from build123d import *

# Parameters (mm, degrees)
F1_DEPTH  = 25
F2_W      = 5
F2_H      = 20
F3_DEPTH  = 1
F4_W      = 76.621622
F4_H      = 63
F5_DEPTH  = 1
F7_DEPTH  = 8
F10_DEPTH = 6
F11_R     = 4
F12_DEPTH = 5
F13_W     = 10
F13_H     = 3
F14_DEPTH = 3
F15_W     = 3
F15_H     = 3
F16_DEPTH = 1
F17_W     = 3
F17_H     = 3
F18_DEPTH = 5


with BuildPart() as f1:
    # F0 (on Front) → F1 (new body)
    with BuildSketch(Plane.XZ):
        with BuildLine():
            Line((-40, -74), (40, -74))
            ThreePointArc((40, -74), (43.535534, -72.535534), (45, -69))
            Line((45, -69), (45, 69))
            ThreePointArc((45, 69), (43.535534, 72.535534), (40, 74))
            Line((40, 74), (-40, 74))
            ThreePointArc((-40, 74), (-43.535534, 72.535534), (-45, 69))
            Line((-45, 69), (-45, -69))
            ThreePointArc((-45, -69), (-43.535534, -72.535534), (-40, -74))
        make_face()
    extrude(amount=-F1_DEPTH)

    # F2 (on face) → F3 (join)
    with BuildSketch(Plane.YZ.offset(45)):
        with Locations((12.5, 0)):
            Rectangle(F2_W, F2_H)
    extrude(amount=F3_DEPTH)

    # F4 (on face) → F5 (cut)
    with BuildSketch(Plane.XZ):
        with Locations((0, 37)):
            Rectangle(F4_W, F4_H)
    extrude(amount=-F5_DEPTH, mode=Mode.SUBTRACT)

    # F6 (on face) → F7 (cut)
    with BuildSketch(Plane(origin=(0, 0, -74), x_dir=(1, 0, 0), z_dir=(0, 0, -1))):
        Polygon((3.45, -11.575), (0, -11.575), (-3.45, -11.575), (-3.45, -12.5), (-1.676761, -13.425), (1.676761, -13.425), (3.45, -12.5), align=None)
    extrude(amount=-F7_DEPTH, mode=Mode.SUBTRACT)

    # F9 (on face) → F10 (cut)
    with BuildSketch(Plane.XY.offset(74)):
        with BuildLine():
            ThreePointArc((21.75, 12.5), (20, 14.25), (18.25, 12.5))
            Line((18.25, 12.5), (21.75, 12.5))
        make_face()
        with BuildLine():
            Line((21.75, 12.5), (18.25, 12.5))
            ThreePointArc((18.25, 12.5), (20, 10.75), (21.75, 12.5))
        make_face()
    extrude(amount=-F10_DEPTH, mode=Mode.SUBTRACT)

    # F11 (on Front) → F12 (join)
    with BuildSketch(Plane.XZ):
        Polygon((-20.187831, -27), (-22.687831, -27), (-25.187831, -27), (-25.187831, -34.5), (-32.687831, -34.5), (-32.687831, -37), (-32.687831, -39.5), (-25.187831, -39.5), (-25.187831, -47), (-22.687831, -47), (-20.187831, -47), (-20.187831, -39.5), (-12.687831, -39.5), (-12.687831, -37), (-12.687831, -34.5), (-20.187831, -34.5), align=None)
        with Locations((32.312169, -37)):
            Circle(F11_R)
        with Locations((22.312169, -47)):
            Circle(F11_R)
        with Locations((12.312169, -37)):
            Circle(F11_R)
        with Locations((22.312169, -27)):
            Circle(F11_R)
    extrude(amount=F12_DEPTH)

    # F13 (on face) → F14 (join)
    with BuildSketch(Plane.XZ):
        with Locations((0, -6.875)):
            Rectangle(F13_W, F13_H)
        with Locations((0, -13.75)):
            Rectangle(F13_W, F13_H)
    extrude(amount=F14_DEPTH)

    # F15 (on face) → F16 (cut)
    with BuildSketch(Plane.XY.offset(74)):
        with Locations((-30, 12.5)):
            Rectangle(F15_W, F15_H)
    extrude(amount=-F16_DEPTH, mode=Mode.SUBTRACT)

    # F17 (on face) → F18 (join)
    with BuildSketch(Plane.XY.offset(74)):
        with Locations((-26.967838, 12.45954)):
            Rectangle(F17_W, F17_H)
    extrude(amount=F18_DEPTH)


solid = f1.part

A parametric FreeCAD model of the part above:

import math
import FreeCAD as App
import Part
import Sketcher


def add_polygon(sketch, points):
    """Adds a closed chain of lines whose ends are joined by coincident constraints."""
    first, n = sketch.GeometryCount, len(points)
    for a, b in zip(points, points[1:] + points[:1]):
        sketch.addGeometry(Part.LineSegment(App.Vector(*a, 0), App.Vector(*b, 0)), False)
    for i in range(n):
        sketch.addConstraint(Sketcher.Constraint("Coincident", first + i, 2, first + (i + 1) % n, 1))

doc = App.newDocument("Part")
body = doc.addObject("PartDesign::Body", "Body")

sketch1 = body.newObject("Sketcher::SketchObject", "Sketch")
sketch1.AttachmentSupport = (doc.getObject("XZ_Plane"), [""])
sketch1.MapMode = "FlatFace"
sketch1.addGeometry(Part.LineSegment(App.Vector(-40, -74, 0), App.Vector(40, -74, 0)), False)
sketch1.addGeometry(Part.ArcOfCircle(Part.Circle(App.Vector(40, -69, 0), App.Vector(0, 0, 1), 5), math.radians(-90.000004), math.radians(0.000004)), False)
sketch1.addGeometry(Part.LineSegment(App.Vector(45, -69, 0), App.Vector(45, 69, 0)), False)
sketch1.addGeometry(Part.ArcOfCircle(Part.Circle(App.Vector(40, 69, 0), App.Vector(0, 0, 1), 5), math.radians(-0.000004), math.radians(90.000004)), False)
sketch1.addGeometry(Part.LineSegment(App.Vector(40, 74, 0), App.Vector(-40, 74, 0)), False)
sketch1.addGeometry(Part.ArcOfCircle(Part.Circle(App.Vector(-40, 69, 0), App.Vector(0, 0, 1), 5), math.radians(89.999996), math.radians(180.000004)), False)
sketch1.addGeometry(Part.LineSegment(App.Vector(-45, 69, 0), App.Vector(-45, -69, 0)), False)
sketch1.addGeometry(Part.ArcOfCircle(Part.Circle(App.Vector(-40, -69, 0), App.Vector(0, 0, 1), 5), math.radians(179.999996), math.radians(270.000004)), False)
sketch1.addConstraint(Sketcher.Constraint("Tangent", 0, 2, 1, 1))
sketch1.addConstraint(Sketcher.Constraint("Tangent", 1, 2, 2, 1))
sketch1.addConstraint(Sketcher.Constraint("Tangent", 2, 2, 3, 1))
sketch1.addConstraint(Sketcher.Constraint("Tangent", 3, 2, 4, 1))
sketch1.addConstraint(Sketcher.Constraint("Tangent", 4, 2, 5, 1))
sketch1.addConstraint(Sketcher.Constraint("Tangent", 5, 2, 6, 1))
sketch1.addConstraint(Sketcher.Constraint("Tangent", 6, 2, 7, 1))
sketch1.addConstraint(Sketcher.Constraint("Tangent", 7, 2, 0, 1))
sketch1.addConstraint(Sketcher.Constraint("Horizontal", 0))
sketch1.addConstraint(Sketcher.Constraint("Vertical", 2))
sketch1.addConstraint(Sketcher.Constraint("Horizontal", 4))
sketch1.addConstraint(Sketcher.Constraint("Vertical", 6))
sketch1.addConstraint(Sketcher.Constraint("Equal", 1, 3))
sketch1.addConstraint(Sketcher.Constraint("Equal", 3, 5))
sketch1.addConstraint(Sketcher.Constraint("Equal", 5, 7))
sketch1.addConstraint(Sketcher.Constraint("Symmetric", 1, 3, 5, 3, -1, 1))
sketch1.addConstraint(Sketcher.Constraint("Radius", 1, 5.0))
sketch1.addConstraint(Sketcher.Constraint("DistanceX", 0, 1, 0, 2, 80.0))
sketch1.addConstraint(Sketcher.Constraint("DistanceY", 2, 1, 2, 2, 138.0))
pad1 = body.newObject("PartDesign::Pad", "Pad")
pad1.Profile = sketch1
pad1.Length = 25
pad1.Reversed = True

sketch2 = body.newObject("Sketcher::SketchObject", "Sketch001")
sketch2.AttachmentSupport = (doc.getObject("YZ_Plane"), [""])
sketch2.MapMode = "FlatFace"
sketch2.AttachmentOffset = App.Placement(App.Vector(0, 0, 45), App.Rotation())
add_polygon(sketch2, [(10, 10), (10, -10), (15, -10), (15, 10)])
sketch2.addConstraint(Sketcher.Constraint("Vertical", 0))
sketch2.addConstraint(Sketcher.Constraint("Horizontal", 1))
sketch2.addConstraint(Sketcher.Constraint("Vertical", 2))
sketch2.addConstraint(Sketcher.Constraint("Horizontal", 3))
sketch2.addConstraint(Sketcher.Constraint("DistanceX", 1, 1, 1, 2, 5.0))
sketch2.addConstraint(Sketcher.Constraint("DistanceY", 0, 2, 0, 1, 20.0))
sketch2.addConstraint(Sketcher.Constraint("DistanceX", -1, 1, 0, 2, 10.0))
sketch2.addConstraint(Sketcher.Constraint("DistanceY", 0, 2, -1, 1, 10.0))
pad2 = body.newObject("PartDesign::Pad", "Pad001")
pad2.Profile = sketch2
pad2.Length = 1

sketch3 = body.newObject("Sketcher::SketchObject", "Sketch002")
sketch3.AttachmentSupport = (doc.getObject("XZ_Plane"), [""])
sketch3.MapMode = "FlatFace"
add_polygon(sketch3, [(-38.310811, 68.5), (-38.310811, 5.5), (38.310811, 5.5), (38.310811, 68.5)])
sketch3.addConstraint(Sketcher.Constraint("Vertical", 0))
sketch3.addConstraint(Sketcher.Constraint("Horizontal", 1))
sketch3.addConstraint(Sketcher.Constraint("Vertical", 2))
sketch3.addConstraint(Sketcher.Constraint("Horizontal", 3))
sketch3.addConstraint(Sketcher.Constraint("DistanceY", 0, 2, 0, 1, 63.0))
sketch3.addConstraint(Sketcher.Constraint("DistanceY", -1, 1, 0, 2, 5.5))
sketch3.addConstraint(Sketcher.Constraint("DistanceX", 1, 1, 1, 2, 76.621622))
sketch3.addConstraint(Sketcher.Constraint("DistanceX", 0, 2, -1, 1, 38.310811))
pocket1 = body.newObject("PartDesign::Pocket", "Pocket")
pocket1.Profile = sketch3
pocket1.Length = 1

sketch4 = body.newObject("Sketcher::SketchObject", "Sketch003")
sketch4.AttachmentSupport = (doc.getObject("XY_Plane"), [""])
sketch4.MapMode = "FlatFace"
sketch4.AttachmentOffset = App.Placement(App.Vector(0, 0, -74), App.Rotation())
add_polygon(sketch4, [(3.45, 11.575), (-3.45, 11.575), (-3.45, 12.5), (-1.676761, 13.425), (1.676761, 13.425), (3.45, 12.5)])
sketch4.addConstraint(Sketcher.Constraint("Horizontal", 0))
sketch4.addConstraint(Sketcher.Constraint("Vertical", 1))
sketch4.addConstraint(Sketcher.Constraint("Horizontal", 3))
sketch4.addConstraint(Sketcher.Constraint("Vertical", 5))
sketch4.addConstraint(Sketcher.Constraint("Symmetric", 1, 2, 4, 2, -2))
sketch4.addConstraint(Sketcher.Constraint("Equal", 2, 4))
sketch4.addConstraint(Sketcher.Constraint("Distance", 2, 2.0))
sketch4.addConstraint(Sketcher.Constraint("DistanceX", 0, 2, 0, 1, 6.9))
sketch4.addConstraint(Sketcher.Constraint("DistanceY", -1, 1, 1, 2, 12.5))
sketch4.addConstraint(Sketcher.Constraint("DistanceY", 1, 1, 1, 2, 0.925))
sketch4.addConstraint(Sketcher.Constraint("DistanceY", 0, 2, 2, 2, 1.85))
pocket2 = body.newObject("PartDesign::Pocket", "Pocket001")
pocket2.Profile = sketch4
pocket2.Length = 8
pocket2.Reversed = True

sketch5 = body.newObject("Sketcher::SketchObject", "Sketch004")
sketch5.AttachmentSupport = (doc.getObject("XY_Plane"), [""])
sketch5.MapMode = "FlatFace"
sketch5.AttachmentOffset = App.Placement(App.Vector(0, 0, 74), App.Rotation())
sketch5.addGeometry(Part.Circle(App.Vector(20, 12.5, 0), App.Vector(0, 0, 1), 1.75), False)
sketch5.addConstraint(Sketcher.Constraint("Diameter", 0, 3.5))
sketch5.addConstraint(Sketcher.Constraint("DistanceX", -1, 1, 0, 3, 20.0))
sketch5.addConstraint(Sketcher.Constraint("DistanceY", -1, 1, 0, 3, 12.5))
pocket3 = body.newObject("PartDesign::Pocket", "Pocket002")
pocket3.Profile = sketch5
pocket3.Length = 6

sketch6 = body.newObject("Sketcher::SketchObject", "Sketch005")
sketch6.AttachmentSupport = (doc.getObject("XZ_Plane"), [""])
sketch6.MapMode = "FlatFace"
add_polygon(sketch6, [(-20.187831, -27), (-25.187831, -27), (-25.187831, -34.5), (-32.687831, -34.5), (-32.687831, -39.5), (-25.187831, -39.5), (-25.187831, -47), (-20.187831, -47), (-20.187831, -39.5), (-12.687831, -39.5), (-12.687831, -34.5), (-20.187831, -34.5)])
sketch6.addGeometry(Part.Circle(App.Vector(32.312169, -37, 0), App.Vector(0, 0, 1), 4), False)
sketch6.addGeometry(Part.Circle(App.Vector(22.312169, -47, 0), App.Vector(0, 0, 1), 4), False)
sketch6.addGeometry(Part.Circle(App.Vector(12.312169, -37, 0), App.Vector(0, 0, 1), 4), False)
sketch6.addGeometry(Part.Circle(App.Vector(22.312169, -27, 0), App.Vector(0, 0, 1), 4), False)
sketch6.addConstraint(Sketcher.Constraint("Horizontal", 0))
sketch6.addConstraint(Sketcher.Constraint("Vertical", 1))
sketch6.addConstraint(Sketcher.Constraint("Horizontal", 2))
sketch6.addConstraint(Sketcher.Constraint("Vertical", 3))
sketch6.addConstraint(Sketcher.Constraint("Horizontal", 4))
sketch6.addConstraint(Sketcher.Constraint("Vertical", 5))
sketch6.addConstraint(Sketcher.Constraint("Horizontal", 6))
sketch6.addConstraint(Sketcher.Constraint("Vertical", 7))
sketch6.addConstraint(Sketcher.Constraint("Horizontal", 8))
sketch6.addConstraint(Sketcher.Constraint("Vertical", 9))
sketch6.addConstraint(Sketcher.Constraint("Horizontal", 10))
sketch6.addConstraint(Sketcher.Constraint("Vertical", 11))
sketch6.addConstraint(Sketcher.Constraint("Equal", 12, 13))
sketch6.addConstraint(Sketcher.Constraint("Equal", 13, 14))
sketch6.addConstraint(Sketcher.Constraint("Equal", 14, 15))
sketch6.addConstraint(Sketcher.Constraint("Horizontal", 12, 3, 14, 3))
sketch6.addConstraint(Sketcher.Constraint("Horizontal", 15, 3, 0, 2))
sketch6.addConstraint(Sketcher.Constraint("Horizontal", 13, 3, 5, 2))
sketch6.addConstraint(Sketcher.Constraint("Horizontal", 4, 2, 7, 2))
sketch6.addConstraint(Sketcher.Constraint("Horizontal", 2, 2, 9, 2))
sketch6.addConstraint(Sketcher.Constraint("Vertical", 13, 3, 15, 3))
sketch6.addConstraint(Sketcher.Constraint("Vertical", 1, 2, 4, 2))
sketch6.addConstraint(Sketcher.Constraint("Vertical", 7, 2, 10, 2))
sketch6.addConstraint(Sketcher.Constraint("Equal", 4, 8))
sketch6.addConstraint(Sketcher.Constraint("Equal", 10, 1))
sketch6.addConstraint(Sketcher.Constraint("Equal", 6, 3))
sketch6.addConstraint(Sketcher.Constraint("Equal", 1, 5))
sketch6.addConstraint(Sketcher.Constraint("Diameter", 12, 8.0))
sketch6.addConstraint(Sketcher.Constraint("DistanceX", 0, 2, 0, 1, 5.0))
sketch6.addConstraint(Sketcher.Constraint("DistanceX", 2, 2, 2, 1, 7.5))
sketch6.addConstraint(Sketcher.Constraint("DistanceY", 12, 3, -1, 1, 37.0))
sketch6.addConstraint(Sketcher.Constraint("DistanceY", 13, 3, -1, 1, 47.0))
sketch6.addConstraint(Sketcher.Constraint("DistanceX", 13, 3, 12, 3, 10.0))
sketch6.addConstraint(Sketcher.Constraint("DistanceX", 14, 3, 13, 3, 10.0))
sketch6.addConstraint(Sketcher.Constraint("DistanceX", 2, 2, 14, 3, 45.0))
sketch6.addConstraint(Sketcher.Constraint("DistanceX", -1, 1, 12, 3, 32.312169))
pad3 = body.newObject("PartDesign::Pad", "Pad002")
pad3.Profile = sketch6
pad3.Length = 5

sketch7 = body.newObject("Sketcher::SketchObject", "Sketch006")
sketch7.AttachmentSupport = (doc.getObject("XZ_Plane"), [""])
sketch7.MapMode = "FlatFace"
add_polygon(sketch7, [(-5, -5.375), (-5, -8.375), (5, -8.375), (5, -5.375)])
add_polygon(sketch7, [(-5, -12.25), (-5, -15.25), (5, -15.25), (5, -12.25)])
sketch7.addConstraint(Sketcher.Constraint("Vertical", 0))
sketch7.addConstraint(Sketcher.Constraint("Horizontal", 1))
sketch7.addConstraint(Sketcher.Constraint("Vertical", 2))
sketch7.addConstraint(Sketcher.Constraint("Horizontal", 3))
sketch7.addConstraint(Sketcher.Constraint("Vertical", 4))
sketch7.addConstraint(Sketcher.Constraint("Horizontal", 5))
sketch7.addConstraint(Sketcher.Constraint("Vertical", 6))
sketch7.addConstraint(Sketcher.Constraint("Horizontal", 7))
sketch7.addConstraint(Sketcher.Constraint("Vertical", 3, 2, 4, 2))
sketch7.addConstraint(Sketcher.Constraint("Vertical", 2, 2, 5, 2))
sketch7.addConstraint(Sketcher.Constraint("Equal", 2, 4))
sketch7.addConstraint(Sketcher.Constraint("DistanceX", 1, 1, 1, 2, 10.0))
sketch7.addConstraint(Sketcher.Constraint("DistanceY", 0, 2, 0, 1, 3.0))
sketch7.addConstraint(Sketcher.Constraint("DistanceX", 0, 2, -1, 1, 5.0))
sketch7.addConstraint(Sketcher.Constraint("DistanceY", 4, 2, -1, 1, 15.25))
sketch7.addConstraint(Sketcher.Constraint("DistanceY", 0, 2, -1, 1, 8.375))
pad4 = body.newObject("PartDesign::Pad", "Pad003")
pad4.Profile = sketch7
pad4.Length = 3

sketch8 = body.newObject("Sketcher::SketchObject", "Sketch007")
sketch8.AttachmentSupport = (doc.getObject("XY_Plane"), [""])
sketch8.MapMode = "FlatFace"
sketch8.AttachmentOffset = App.Placement(App.Vector(0, 0, 74), App.Rotation())
add_polygon(sketch8, [(-31.5, 14), (-31.5, 11), (-28.5, 11), (-28.5, 14)])
sketch8.addConstraint(Sketcher.Constraint("Vertical", 0))
sketch8.addConstraint(Sketcher.Constraint("Horizontal", 1))
sketch8.addConstraint(Sketcher.Constraint("Vertical", 2))
sketch8.addConstraint(Sketcher.Constraint("Horizontal", 3))
sketch8.addConstraint(Sketcher.Constraint("Equal", 3, 0))
sketch8.addConstraint(Sketcher.Constraint("DistanceX", 1, 1, 1, 2, 3.0))
sketch8.addConstraint(Sketcher.Constraint("DistanceY", -1, 1, 0, 2, 11.0))
sketch8.addConstraint(Sketcher.Constraint("DistanceX", 0, 2, -1, 1, 31.5))
pocket4 = body.newObject("PartDesign::Pocket", "Pocket003")
pocket4.Profile = sketch8
pocket4.Length = 1

sketch9 = body.newObject("Sketcher::SketchObject", "Sketch008")
sketch9.AttachmentSupport = (doc.getObject("XY_Plane"), [""])
sketch9.MapMode = "FlatFace"
sketch9.AttachmentOffset = App.Placement(App.Vector(0, 0, 74), App.Rotation())
add_polygon(sketch9, [(-28.467838, 13.95954), (-28.467838, 10.95954), (-25.467838, 10.95954), (-25.467838, 13.95954)])
sketch9.addConstraint(Sketcher.Constraint("Vertical", 0))
sketch9.addConstraint(Sketcher.Constraint("Horizontal", 1))
sketch9.addConstraint(Sketcher.Constraint("Vertical", 2))
sketch9.addConstraint(Sketcher.Constraint("Horizontal", 3))
sketch9.addConstraint(Sketcher.Constraint("Equal", 3, 0))
sketch9.addConstraint(Sketcher.Constraint("DistanceX", 1, 1, 1, 2, 3.0))
sketch9.addConstraint(Sketcher.Constraint("DistanceX", 0, 2, -1, 1, 28.467838))
sketch9.addConstraint(Sketcher.Constraint("DistanceY", -1, 1, 0, 2, 10.95954))
pad5 = body.newObject("PartDesign::Pad", "Pad004")
pad5.Profile = sketch9
pad5.Length = 5

doc.recompute()
